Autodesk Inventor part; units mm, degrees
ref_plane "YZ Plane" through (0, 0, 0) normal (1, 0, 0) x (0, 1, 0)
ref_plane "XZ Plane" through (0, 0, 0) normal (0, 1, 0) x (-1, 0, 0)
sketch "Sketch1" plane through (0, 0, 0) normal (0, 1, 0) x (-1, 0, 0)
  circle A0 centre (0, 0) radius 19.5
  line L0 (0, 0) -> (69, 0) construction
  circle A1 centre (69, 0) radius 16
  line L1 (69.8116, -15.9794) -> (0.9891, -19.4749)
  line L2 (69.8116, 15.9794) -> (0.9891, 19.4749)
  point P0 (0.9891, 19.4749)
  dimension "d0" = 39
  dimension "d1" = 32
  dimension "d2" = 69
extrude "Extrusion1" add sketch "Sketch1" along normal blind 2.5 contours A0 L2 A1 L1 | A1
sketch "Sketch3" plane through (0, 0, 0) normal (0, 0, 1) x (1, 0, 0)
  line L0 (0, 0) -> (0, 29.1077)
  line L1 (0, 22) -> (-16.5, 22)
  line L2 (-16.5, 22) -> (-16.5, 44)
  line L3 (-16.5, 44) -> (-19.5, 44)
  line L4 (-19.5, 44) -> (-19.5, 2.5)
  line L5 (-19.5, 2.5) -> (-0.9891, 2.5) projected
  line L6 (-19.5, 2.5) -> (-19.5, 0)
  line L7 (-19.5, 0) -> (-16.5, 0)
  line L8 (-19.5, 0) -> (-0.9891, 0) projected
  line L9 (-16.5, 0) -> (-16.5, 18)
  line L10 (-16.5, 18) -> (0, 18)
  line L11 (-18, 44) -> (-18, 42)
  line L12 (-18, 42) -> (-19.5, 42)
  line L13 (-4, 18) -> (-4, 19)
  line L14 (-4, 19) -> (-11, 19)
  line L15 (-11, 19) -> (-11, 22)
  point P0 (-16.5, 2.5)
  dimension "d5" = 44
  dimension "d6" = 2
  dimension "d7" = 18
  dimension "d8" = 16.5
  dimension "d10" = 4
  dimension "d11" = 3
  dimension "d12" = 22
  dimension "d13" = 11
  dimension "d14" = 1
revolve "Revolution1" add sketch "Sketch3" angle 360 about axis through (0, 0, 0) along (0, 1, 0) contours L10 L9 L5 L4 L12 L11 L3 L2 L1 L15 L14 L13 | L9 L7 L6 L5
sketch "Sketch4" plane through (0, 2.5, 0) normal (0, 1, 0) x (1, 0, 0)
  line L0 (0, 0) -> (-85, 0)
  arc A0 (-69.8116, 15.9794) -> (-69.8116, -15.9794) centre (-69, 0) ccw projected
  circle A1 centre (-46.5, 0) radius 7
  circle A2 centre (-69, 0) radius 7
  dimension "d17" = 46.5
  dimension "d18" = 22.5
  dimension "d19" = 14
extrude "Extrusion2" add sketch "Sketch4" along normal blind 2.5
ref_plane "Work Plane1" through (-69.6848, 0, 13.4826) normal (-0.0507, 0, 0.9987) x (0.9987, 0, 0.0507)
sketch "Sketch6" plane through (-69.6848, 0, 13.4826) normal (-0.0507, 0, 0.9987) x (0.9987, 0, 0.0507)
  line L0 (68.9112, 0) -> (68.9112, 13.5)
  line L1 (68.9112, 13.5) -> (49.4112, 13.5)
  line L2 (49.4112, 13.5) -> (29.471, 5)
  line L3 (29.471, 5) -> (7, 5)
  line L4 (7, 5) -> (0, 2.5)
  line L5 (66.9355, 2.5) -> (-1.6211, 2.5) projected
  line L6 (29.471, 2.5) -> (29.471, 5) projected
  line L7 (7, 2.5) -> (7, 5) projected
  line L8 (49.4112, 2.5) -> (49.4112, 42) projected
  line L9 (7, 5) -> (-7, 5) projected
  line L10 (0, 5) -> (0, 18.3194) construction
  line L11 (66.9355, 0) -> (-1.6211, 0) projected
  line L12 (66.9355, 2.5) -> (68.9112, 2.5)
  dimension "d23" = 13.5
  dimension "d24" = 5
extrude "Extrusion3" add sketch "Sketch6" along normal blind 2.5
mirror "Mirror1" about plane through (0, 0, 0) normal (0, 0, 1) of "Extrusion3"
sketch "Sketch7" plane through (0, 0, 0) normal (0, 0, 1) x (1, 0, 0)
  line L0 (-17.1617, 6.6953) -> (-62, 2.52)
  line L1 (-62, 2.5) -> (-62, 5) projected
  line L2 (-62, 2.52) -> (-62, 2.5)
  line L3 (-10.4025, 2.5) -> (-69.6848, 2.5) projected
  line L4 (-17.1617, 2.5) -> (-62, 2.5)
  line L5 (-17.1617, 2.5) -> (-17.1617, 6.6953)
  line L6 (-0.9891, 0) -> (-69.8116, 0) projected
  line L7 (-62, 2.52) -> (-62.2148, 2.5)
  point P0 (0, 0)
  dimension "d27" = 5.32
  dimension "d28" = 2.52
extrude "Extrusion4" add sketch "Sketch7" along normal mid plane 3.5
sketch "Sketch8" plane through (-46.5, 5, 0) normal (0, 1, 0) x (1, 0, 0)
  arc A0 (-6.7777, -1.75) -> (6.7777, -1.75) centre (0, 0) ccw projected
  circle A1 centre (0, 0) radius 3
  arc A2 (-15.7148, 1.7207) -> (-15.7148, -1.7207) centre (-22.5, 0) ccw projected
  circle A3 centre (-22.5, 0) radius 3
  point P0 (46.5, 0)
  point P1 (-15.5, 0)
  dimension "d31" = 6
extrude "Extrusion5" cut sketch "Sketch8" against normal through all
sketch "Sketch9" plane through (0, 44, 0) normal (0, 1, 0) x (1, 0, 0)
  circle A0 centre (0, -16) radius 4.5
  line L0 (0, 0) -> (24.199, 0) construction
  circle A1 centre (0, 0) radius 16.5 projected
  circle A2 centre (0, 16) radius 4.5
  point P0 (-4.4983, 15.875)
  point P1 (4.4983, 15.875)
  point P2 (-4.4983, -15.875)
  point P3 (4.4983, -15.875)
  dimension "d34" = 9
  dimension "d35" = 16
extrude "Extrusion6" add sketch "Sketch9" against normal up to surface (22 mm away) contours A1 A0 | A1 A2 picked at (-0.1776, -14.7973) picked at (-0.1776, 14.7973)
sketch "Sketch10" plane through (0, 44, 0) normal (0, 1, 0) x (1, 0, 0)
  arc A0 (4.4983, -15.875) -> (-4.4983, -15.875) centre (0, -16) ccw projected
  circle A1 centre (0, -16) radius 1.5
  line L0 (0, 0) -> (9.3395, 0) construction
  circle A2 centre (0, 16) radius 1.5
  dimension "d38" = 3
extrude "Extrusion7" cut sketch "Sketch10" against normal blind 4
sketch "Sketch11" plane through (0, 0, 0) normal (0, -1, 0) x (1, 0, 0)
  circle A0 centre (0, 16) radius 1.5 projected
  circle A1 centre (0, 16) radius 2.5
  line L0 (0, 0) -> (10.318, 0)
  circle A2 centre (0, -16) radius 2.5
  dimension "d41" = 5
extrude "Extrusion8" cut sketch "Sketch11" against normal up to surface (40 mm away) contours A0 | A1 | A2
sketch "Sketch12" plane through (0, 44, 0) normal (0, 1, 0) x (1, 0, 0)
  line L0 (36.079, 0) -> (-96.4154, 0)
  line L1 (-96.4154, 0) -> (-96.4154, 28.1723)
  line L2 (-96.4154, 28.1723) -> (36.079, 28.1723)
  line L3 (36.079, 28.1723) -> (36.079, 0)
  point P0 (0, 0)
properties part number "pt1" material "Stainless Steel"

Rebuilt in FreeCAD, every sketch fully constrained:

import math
import FreeCAD as App
import Part
import Sketcher
from FreeCAD import Vector
Q = App.Units.Quantity

doc = App.newDocument("Part")
body = doc.addObject("PartDesign::Body", "Body")

# Sketch on XZ plane
sketch1 = body.newObject("Sketcher::SketchObject", "Sketch")
sketch1.AttachmentSupport = (doc.getObject("XZ_Plane"), [""])
sketch1.MapMode = "FlatFace"
sketch1.addGeometry([
    Part.ArcOfCircle(Part.Circle(Vector(0, 0, 0), Vector(0, 0, 1), 20), math.radians(93), math.radians(267)),
    Part.LineSegment(Vector(-1, -19, 0), Vector(-70, -16, 0)),
    Part.ArcOfCircle(Part.Circle(Vector(-69, 0, 0), Vector(0, 0, 1), 16), math.radians(93), math.radians(267)),
    Part.LineSegment(Vector(-70, 16, 0), Vector(-1, 19, 0)),
], False)
sketch1.addConstraint([
    Sketcher.Constraint("Tangent", 0, 2, 1, 1),
    Sketcher.Constraint("Tangent", 1, 2, 2, 2),
    Sketcher.Constraint("Tangent", 2, 1, 3, 1),
    Sketcher.Constraint("Tangent", 3, 2, 0, 1),
    Sketcher.Constraint("Coincident", 0, 3, -1, 1),
    Sketcher.Constraint("PointOnObject", 2, 3, -1),
    Sketcher.Constraint("Radius", 2, Q("16 mm")),
    Sketcher.Constraint("Radius", 0, Q("19.5 mm")),
    Sketcher.Constraint("DistanceX", 2, 3, -1, 1, Q("69 mm")),
])
pad1 = body.newObject("PartDesign::Pad", "Pad")
pad1.Profile = sketch1
pad1.Length = 2.5
pad1.Reversed = True

# Sketch on XY plane
sketch2 = body.newObject("Sketcher::SketchObject", "Sketch001")
sketch2.AttachmentSupport = (doc.getObject("XY_Plane"), [""])
sketch2.MapMode = "FlatFace"
sketch2.addGeometry([
    Part.LineSegment(Vector(-16.5, 18, 0), Vector(-4, 18, 0)),  # 0
    Part.LineSegment(Vector(-4, 18, 0), Vector(-4, 19, 0)),  # 1
    Part.LineSegment(Vector(-4, 19, 0), Vector(-11, 19, 0)),  # 2
    Part.LineSegment(Vector(-11, 19, 0), Vector(-11, 22, 0)),  # 3
    Part.LineSegment(Vector(-11, 22, 0), Vector(-16.5, 22, 0)),  # 4
    Part.LineSegment(Vector(-16.5, 22, 0), Vector(-16.5, 44, 0)),  # 5
    Part.LineSegment(Vector(-16.5, 44, 0), Vector(-18, 44, 0)),  # 6
    Part.LineSegment(Vector(-18, 44, 0), Vector(-18, 42, 0)),  # 7
    Part.LineSegment(Vector(-18, 42, 0), Vector(-19.5, 42, 0)),  # 8
    Part.LineSegment(Vector(-19.5, 42, 0), Vector(-19.5, 0, 0)),  # 9
    Part.LineSegment(Vector(-19.5, 0, 0), Vector(-16.5, 0, 0)),  # 10
    Part.LineSegment(Vector(-16.5, 0, 0), Vector(-16.5, 18, 0)),  # 11
], False)
sketch2.addConstraint([
    Sketcher.Constraint("Coincident", 0, 2, 1, 1),
    Sketcher.Constraint("Coincident", 1, 2, 2, 1),
    Sketcher.Constraint("Coincident", 2, 2, 3, 1),
    Sketcher.Constraint("Coincident", 3, 2, 4, 1),
    Sketcher.Constraint("Coincident", 4, 2, 5, 1),
    Sketcher.Constraint("Coincident", 5, 2, 6, 1),
    Sketcher.Constraint("Coincident", 6, 2, 7, 1),
    Sketcher.Constraint("Coincident", 7, 2, 8, 1),
    Sketcher.Constraint("Coincident", 8, 2, 9, 1),
    Sketcher.Constraint("Coincident", 9, 2, 10, 1),
    Sketcher.Constraint("Coincident", 10, 2, 11, 1),
    Sketcher.Constraint("Coincident", 11, 2, 0, 1),
    Sketcher.Constraint("Horizontal", 0),
    Sketcher.Constraint("Vertical", 1),
    Sketcher.Constraint("Horizontal", 2),
    Sketcher.Constraint("Vertical", 3),
    Sketcher.Constraint("Horizontal", 4),
    Sketcher.Constraint("Vertical", 5),
    Sketcher.Constraint("Horizontal", 6),
    Sketcher.Constraint("Vertical", 7),
    Sketcher.Constraint("Horizontal", 8),
    Sketcher.Constraint("Vertical", 9),
    Sketcher.Constraint("Horizontal", 10),
    Sketcher.Constraint("Vertical", 11),
    Sketcher.Constraint("PointOnObject", 9, 2, -1),
    Sketcher.Constraint("Vertical", 5, 2, 10, 2),
    Sketcher.Constraint("Equal", 6, 8),
    Sketcher.Constraint("Equal", 10, 3),
    Sketcher.Constraint("DistanceX", 10, 1, 10, 2, Q("3 mm")),
    Sketcher.Constraint("DistanceY", 1, 1, 1, 2, Q("1 mm")),
    Sketcher.Constraint("DistanceY", 5, 1, 5, 2, Q("22 mm")),
    Sketcher.Constraint("DistanceY", 7, 2, 7, 1, Q("2 mm")),
    Sketcher.Constraint("DistanceY", 11, 1, 11, 2, Q("18 mm")),
    Sketcher.Constraint("DistanceX", 0, 2, -1, 1, Q("4 mm")),
    Sketcher.Constraint("DistanceX", 2, 2, -1, 1, Q("11 mm")),
    Sketcher.Constraint("DistanceX", 6, 2, -1, 1, Q("18 mm")),
])
revolution = body.newObject("PartDesign::Revolution", "Revolution")
revolution.Profile = sketch2
revolution.ReferenceAxis = (sketch2, ["V_Axis"])
revolution.Angle = 360

# Sketch on XZ plane
sketch3 = body.newObject("Sketcher::SketchObject", "Sketch002")
sketch3.AttachmentSupport = (doc.getObject("XZ_Plane"), [""])
sketch3.MapMode = "FlatFace"
sketch3.AttachmentOffset = App.Placement(Vector(0, 0, -2.5), App.Rotation())
sketch3.addGeometry([
    Part.Circle(Vector(-46, 0, 0), Vector(0, 0, 1), 7),
    Part.Circle(Vector(-69, 0, 0), Vector(0, 0, 1), 7),
], False)
sketch3.addConstraint([
    Sketcher.Constraint("Equal", 0, 1),
    Sketcher.Constraint("PointOnObject", 0, 3, -1),
    Sketcher.Constraint("PointOnObject", 1, 3, -1),
    Sketcher.Constraint("Diameter", 0, Q("14 mm")),
    Sketcher.Constraint("DistanceX", 0, 3, -1, 1, Q("46.5 mm")),
    Sketcher.Constraint("DistanceX", 1, 3, 0, 3, Q("22.5 mm")),
])
pad2 = body.newObject("PartDesign::Pad", "Pad001")
pad2.Profile = sketch3
pad2.Length = 2.5
pad2.Reversed = True

# Sketch on an angled plane
sketch4 = body.newObject("Sketcher::SketchObject", "Sketch003")
sketch4.Placement = App.Placement(Vector(-69.6848, 0, 13.4826), App.Rotation(Vector(0.998713892, 0, 0.050700705), Vector(0, 1, 0), Vector(-0.050700705, 0, 0.998713892), "ZXY"))
sketch4.addGeometry([
    Part.LineSegment(Vector(69, 2, 0), Vector(69, 13, 0)),  # 0
    Part.LineSegment(Vector(69, 13, 0), Vector(49, 13, 0)),  # 1
    Part.LineSegment(Vector(49, 13, 0), Vector(29, 5, 0)),  # 2
    Part.LineSegment(Vector(29, 5, 0), Vector(7, 5, 0)),  # 3
    Part.LineSegment(Vector(7, 5, 0), Vector(0, 2, 0)),  # 4
    Part.LineSegment(Vector(0, 2, 0), Vector(69, 2, 0)),  # 5
], False)
sketch4.addConstraint([
    Sketcher.Constraint("Coincident", 0, 2, 1, 1),
    Sketcher.Constraint("Coincident", 1, 2, 2, 1),
    Sketcher.Constraint("Coincident", 2, 2, 3, 1),
    Sketcher.Constraint("Coincident", 3, 2, 4, 1),
    Sketcher.Constraint("Coincident", 4, 2, 5, 1),
    Sketcher.Constraint("Coincident", 5, 2, 0, 1),
    Sketcher.Constraint("Vertical", 0),
    Sketcher.Constraint("Horizontal", 1),
    Sketcher.Constraint("Horizontal", 3),
    Sketcher.Constraint("Horizontal", 5),
    Sketcher.Constraint("PointOnObject", 4, 2, -2),
    Sketcher.Constraint("DistanceY", -1, 1, 2, 2, Q("5 mm")),
    Sketcher.Constraint("DistanceY", -1, 1, 0, 2, Q("13.5 mm")),
    Sketcher.Constraint("DistanceY", 0, 1, 0, 2, Q("11 mm")),
    Sketcher.Constraint("DistanceX", 1, 2, 1, 1, Q("19.5 mm")),
    Sketcher.Constraint("DistanceX", -1, 1, 3, 2, Q("7 mm")),
    Sketcher.Constraint("DistanceX", 3, 2, 3, 1, Q("22.471 mm")),
    Sketcher.Constraint("DistanceX", 5, 1, 5, 2, Q("68.9112 mm")),
])
pad3 = body.newObject("PartDesign::Pad", "Pad002")
pad3.Profile = sketch4
pad3.Length = 2.5
doc.recompute()

mirrored = body.newObject("PartDesign::Mirrored", "Mirrored")
mirrored.Originals = [pad3]
mirrored.MirrorPlane = (doc.getObject("XY_Plane"), [""])
body.Tip = mirrored

# Sketch on XY plane
sketch5 = body.newObject("Sketcher::SketchObject", "Sketch004")
sketch5.AttachmentSupport = (doc.getObject("XY_Plane"), [""])
sketch5.MapMode = "FlatFace"
sketch5.addGeometry([
    Part.LineSegment(Vector(-17.16, 2.5, 0), Vector(-17.16, 6.7, 0)),
    Part.LineSegment(Vector(-17.16, 6.7, 0), Vector(-62, 2.52, 0)),
    Part.LineSegment(Vector(-62, 2.52, 0), Vector(-62.21, 2.5, 0)),
    Part.LineSegment(Vector(-62.21, 2.5, 0), Vector(-17.16, 2.5, 0)),
], False)
sketch5.addConstraint([
    Sketcher.Constraint("Coincident", 0, 2, 1, 1),
    Sketcher.Constraint("Coincident", 1, 2, 2, 1),
    Sketcher.Constraint("Coincident", 2, 2, 3, 1),
    Sketcher.Constraint("Coincident", 3, 2, 0, 1),
    Sketcher.Constraint("Vertical", 0),
    Sketcher.Constraint("Horizontal", 3),
    Sketcher.Constraint("Parallel", 1, 2),
    Sketcher.Constraint("DistanceY", -1, 1, 1, 2, Q("2.52 mm")),
    Sketcher.Constraint("DistanceX", 1, 2, -1, 1, Q("62 mm")),
    Sketcher.Constraint("DistanceY", -1, 1, 2, 2, Q("2.5 mm")),
    Sketcher.Constraint("Angle", 1, Q("-174.68 deg")),
    Sketcher.Constraint("DistanceX", 3, 1, 3, 2, Q("45.053 mm")),
])
pad4 = body.newObject("PartDesign::Pad", "Pad003")
pad4.Profile = sketch5
pad4.Length = 3.5
pad4.Midplane = True

# Sketch on XZ plane
sketch6 = body.newObject("Sketcher::SketchObject", "Sketch005")
sketch6.AttachmentSupport = (doc.getObject("XZ_Plane"), [""])
sketch6.MapMode = "FlatFace"
sketch6.AttachmentOffset = App.Placement(Vector(0, 0, -5), App.Rotation())
sketch6.addGeometry([
    Part.Circle(Vector(-46.5, 0, 0), Vector(0, 0, 1), 3),
    Part.Circle(Vector(-69, 0, 0), Vector(0, 0, 1), 3),
], False)
sketch6.addConstraint([
    Sketcher.Constraint("Equal", 0, 1),
    Sketcher.Constraint("PointOnObject", 0, 3, -1),
    Sketcher.Constraint("PointOnObject", 1, 3, -1),
    Sketcher.Constraint("Diameter", 0, Q("6 mm")),
    Sketcher.Constraint("DistanceX", 1, 3, -1, 1, Q("69 mm")),
    Sketcher.Constraint("DistanceX", 0, 3, -1, 1, Q("46.5 mm")),
])
pocket1 = body.newObject("PartDesign::Pocket", "Pocket")
pocket1.Profile = sketch6
pocket1.Type = "ThroughAll"
pocket1.Reversed = True

# Sketch on XZ plane
sketch7 = body.newObject("Sketcher::SketchObject", "Sketch006")
sketch7.AttachmentSupport = (doc.getObject("XZ_Plane"), [""])
sketch7.MapMode = "FlatFace"
sketch7.AttachmentOffset = App.Placement(Vector(0, 0, -44), App.Rotation())
sketch7.addGeometry([
    Part.ArcOfCircle(Part.Circle(Vector(0, 0, 0), Vector(0, 0, 1), 16.5), math.radians(74), math.radians(106)),
    Part.ArcOfCircle(Part.Circle(Vector(0, 16, 0), Vector(0, 0, 1), 4.5), math.radians(-178), math.radians(-2)),
    Part.ArcOfCircle(Part.Circle(Vector(0, 0, 0), Vector(0, 0, 1), 16.5), math.radians(-106), math.radians(-74)),
    Part.ArcOfCircle(Part.Circle(Vector(0, -16, 0), Vector(0, 0, 1), 4.5), math.radians(2), math.radians(178)),
], False)
sketch7.addConstraint([
    Sketcher.Constraint("Coincident", 0, 1, 1, 2),
    Sketcher.Constraint("Coincident", 1, 1, 0, 2),
    Sketcher.Constraint("Coincident", 2, 1, 3, 2),
    Sketcher.Constraint("Coincident", 3, 1, 2, 2),
    Sketcher.Constraint("Coincident", 0, 3, -1, 1),
    Sketcher.Constraint("Coincident", 2, 3, -1, 1),
    Sketcher.Constraint("Equal", 0, 2),
    Sketcher.Constraint("Equal", 1, 3),
    Sketcher.Constraint("Symmetric", 1, 3, 3, 3, -1, 1),
    Sketcher.Constraint("PointOnObject", 1, 3, -2),
    Sketcher.Constraint("Radius", 1, Q("4.5 mm")),
    Sketcher.Constraint("DistanceY", -1, 1, 1, 3, Q("16 mm")),
    Sketcher.Constraint("Radius", 0, Q("16.5 mm")),
])
pad5 = body.newObject("PartDesign::Pad", "Pad004")
pad5.Profile = sketch7
pad5.Length = 22

# Sketch on XZ plane
sketch8 = body.newObject("Sketcher::SketchObject", "Sketch007")
sketch8.AttachmentSupport = (doc.getObject("XZ_Plane"), [""])
sketch8.MapMode = "FlatFace"
sketch8.AttachmentOffset = App.Placement(Vector(0, 0, -44), App.Rotation())
sketch8.addGeometry([
    Part.Circle(Vector(0, 16, 0), Vector(0, 0, 1), 1.5),
    Part.Circle(Vector(0, -16, 0), Vector(0, 0, 1), 1.5),
], False)
sketch8.addConstraint([
    Sketcher.Constraint("Equal", 0, 1),
    Sketcher.Constraint("Symmetric", 0, 3, 1, 3, -1, 1),
    Sketcher.Constraint("PointOnObject", 0, 3, -2),
    Sketcher.Constraint("Diameter", 0, Q("3 mm")),
    Sketcher.Constraint("DistanceY", -1, 1, 0, 3, Q("16 mm")),
])
pocket2 = body.newObject("PartDesign::Pocket", "Pocket001")
pocket2.Profile = sketch8
pocket2.Length = 4
pocket2.Reversed = True

# Sketch on XZ plane
sketch9 = body.newObject("Sketcher::SketchObject", "Sketch008")
sketch9.AttachmentSupport = (doc.getObject("XZ_Plane"), [""])
sketch9.MapMode = "FlatFace"
sketch9.addGeometry([
    Part.Circle(Vector(0, 16, 0), Vector(0, 0, 1), 2.5),
    Part.Circle(Vector(0, -16, 0), Vector(0, 0, 1), 2.5),
], False)
sketch9.addConstraint([
    Sketcher.Constraint("Equal", 0, 1),
    Sketcher.Constraint("Symmetric", 0, 3, 1, 3, -1, 1),
    Sketcher.Constraint("PointOnObject", 0, 3, -2),
    Sketcher.Constraint("Diameter", 0, Q("5 mm")),
    Sketcher.Constraint("DistanceY", -1, 1, 0, 3, Q("16 mm")),
])
pocket3 = body.newObject("PartDesign::Pocket", "Pocket002")
pocket3.Profile = sketch9
pocket3.Length = 40

doc.recompute()
